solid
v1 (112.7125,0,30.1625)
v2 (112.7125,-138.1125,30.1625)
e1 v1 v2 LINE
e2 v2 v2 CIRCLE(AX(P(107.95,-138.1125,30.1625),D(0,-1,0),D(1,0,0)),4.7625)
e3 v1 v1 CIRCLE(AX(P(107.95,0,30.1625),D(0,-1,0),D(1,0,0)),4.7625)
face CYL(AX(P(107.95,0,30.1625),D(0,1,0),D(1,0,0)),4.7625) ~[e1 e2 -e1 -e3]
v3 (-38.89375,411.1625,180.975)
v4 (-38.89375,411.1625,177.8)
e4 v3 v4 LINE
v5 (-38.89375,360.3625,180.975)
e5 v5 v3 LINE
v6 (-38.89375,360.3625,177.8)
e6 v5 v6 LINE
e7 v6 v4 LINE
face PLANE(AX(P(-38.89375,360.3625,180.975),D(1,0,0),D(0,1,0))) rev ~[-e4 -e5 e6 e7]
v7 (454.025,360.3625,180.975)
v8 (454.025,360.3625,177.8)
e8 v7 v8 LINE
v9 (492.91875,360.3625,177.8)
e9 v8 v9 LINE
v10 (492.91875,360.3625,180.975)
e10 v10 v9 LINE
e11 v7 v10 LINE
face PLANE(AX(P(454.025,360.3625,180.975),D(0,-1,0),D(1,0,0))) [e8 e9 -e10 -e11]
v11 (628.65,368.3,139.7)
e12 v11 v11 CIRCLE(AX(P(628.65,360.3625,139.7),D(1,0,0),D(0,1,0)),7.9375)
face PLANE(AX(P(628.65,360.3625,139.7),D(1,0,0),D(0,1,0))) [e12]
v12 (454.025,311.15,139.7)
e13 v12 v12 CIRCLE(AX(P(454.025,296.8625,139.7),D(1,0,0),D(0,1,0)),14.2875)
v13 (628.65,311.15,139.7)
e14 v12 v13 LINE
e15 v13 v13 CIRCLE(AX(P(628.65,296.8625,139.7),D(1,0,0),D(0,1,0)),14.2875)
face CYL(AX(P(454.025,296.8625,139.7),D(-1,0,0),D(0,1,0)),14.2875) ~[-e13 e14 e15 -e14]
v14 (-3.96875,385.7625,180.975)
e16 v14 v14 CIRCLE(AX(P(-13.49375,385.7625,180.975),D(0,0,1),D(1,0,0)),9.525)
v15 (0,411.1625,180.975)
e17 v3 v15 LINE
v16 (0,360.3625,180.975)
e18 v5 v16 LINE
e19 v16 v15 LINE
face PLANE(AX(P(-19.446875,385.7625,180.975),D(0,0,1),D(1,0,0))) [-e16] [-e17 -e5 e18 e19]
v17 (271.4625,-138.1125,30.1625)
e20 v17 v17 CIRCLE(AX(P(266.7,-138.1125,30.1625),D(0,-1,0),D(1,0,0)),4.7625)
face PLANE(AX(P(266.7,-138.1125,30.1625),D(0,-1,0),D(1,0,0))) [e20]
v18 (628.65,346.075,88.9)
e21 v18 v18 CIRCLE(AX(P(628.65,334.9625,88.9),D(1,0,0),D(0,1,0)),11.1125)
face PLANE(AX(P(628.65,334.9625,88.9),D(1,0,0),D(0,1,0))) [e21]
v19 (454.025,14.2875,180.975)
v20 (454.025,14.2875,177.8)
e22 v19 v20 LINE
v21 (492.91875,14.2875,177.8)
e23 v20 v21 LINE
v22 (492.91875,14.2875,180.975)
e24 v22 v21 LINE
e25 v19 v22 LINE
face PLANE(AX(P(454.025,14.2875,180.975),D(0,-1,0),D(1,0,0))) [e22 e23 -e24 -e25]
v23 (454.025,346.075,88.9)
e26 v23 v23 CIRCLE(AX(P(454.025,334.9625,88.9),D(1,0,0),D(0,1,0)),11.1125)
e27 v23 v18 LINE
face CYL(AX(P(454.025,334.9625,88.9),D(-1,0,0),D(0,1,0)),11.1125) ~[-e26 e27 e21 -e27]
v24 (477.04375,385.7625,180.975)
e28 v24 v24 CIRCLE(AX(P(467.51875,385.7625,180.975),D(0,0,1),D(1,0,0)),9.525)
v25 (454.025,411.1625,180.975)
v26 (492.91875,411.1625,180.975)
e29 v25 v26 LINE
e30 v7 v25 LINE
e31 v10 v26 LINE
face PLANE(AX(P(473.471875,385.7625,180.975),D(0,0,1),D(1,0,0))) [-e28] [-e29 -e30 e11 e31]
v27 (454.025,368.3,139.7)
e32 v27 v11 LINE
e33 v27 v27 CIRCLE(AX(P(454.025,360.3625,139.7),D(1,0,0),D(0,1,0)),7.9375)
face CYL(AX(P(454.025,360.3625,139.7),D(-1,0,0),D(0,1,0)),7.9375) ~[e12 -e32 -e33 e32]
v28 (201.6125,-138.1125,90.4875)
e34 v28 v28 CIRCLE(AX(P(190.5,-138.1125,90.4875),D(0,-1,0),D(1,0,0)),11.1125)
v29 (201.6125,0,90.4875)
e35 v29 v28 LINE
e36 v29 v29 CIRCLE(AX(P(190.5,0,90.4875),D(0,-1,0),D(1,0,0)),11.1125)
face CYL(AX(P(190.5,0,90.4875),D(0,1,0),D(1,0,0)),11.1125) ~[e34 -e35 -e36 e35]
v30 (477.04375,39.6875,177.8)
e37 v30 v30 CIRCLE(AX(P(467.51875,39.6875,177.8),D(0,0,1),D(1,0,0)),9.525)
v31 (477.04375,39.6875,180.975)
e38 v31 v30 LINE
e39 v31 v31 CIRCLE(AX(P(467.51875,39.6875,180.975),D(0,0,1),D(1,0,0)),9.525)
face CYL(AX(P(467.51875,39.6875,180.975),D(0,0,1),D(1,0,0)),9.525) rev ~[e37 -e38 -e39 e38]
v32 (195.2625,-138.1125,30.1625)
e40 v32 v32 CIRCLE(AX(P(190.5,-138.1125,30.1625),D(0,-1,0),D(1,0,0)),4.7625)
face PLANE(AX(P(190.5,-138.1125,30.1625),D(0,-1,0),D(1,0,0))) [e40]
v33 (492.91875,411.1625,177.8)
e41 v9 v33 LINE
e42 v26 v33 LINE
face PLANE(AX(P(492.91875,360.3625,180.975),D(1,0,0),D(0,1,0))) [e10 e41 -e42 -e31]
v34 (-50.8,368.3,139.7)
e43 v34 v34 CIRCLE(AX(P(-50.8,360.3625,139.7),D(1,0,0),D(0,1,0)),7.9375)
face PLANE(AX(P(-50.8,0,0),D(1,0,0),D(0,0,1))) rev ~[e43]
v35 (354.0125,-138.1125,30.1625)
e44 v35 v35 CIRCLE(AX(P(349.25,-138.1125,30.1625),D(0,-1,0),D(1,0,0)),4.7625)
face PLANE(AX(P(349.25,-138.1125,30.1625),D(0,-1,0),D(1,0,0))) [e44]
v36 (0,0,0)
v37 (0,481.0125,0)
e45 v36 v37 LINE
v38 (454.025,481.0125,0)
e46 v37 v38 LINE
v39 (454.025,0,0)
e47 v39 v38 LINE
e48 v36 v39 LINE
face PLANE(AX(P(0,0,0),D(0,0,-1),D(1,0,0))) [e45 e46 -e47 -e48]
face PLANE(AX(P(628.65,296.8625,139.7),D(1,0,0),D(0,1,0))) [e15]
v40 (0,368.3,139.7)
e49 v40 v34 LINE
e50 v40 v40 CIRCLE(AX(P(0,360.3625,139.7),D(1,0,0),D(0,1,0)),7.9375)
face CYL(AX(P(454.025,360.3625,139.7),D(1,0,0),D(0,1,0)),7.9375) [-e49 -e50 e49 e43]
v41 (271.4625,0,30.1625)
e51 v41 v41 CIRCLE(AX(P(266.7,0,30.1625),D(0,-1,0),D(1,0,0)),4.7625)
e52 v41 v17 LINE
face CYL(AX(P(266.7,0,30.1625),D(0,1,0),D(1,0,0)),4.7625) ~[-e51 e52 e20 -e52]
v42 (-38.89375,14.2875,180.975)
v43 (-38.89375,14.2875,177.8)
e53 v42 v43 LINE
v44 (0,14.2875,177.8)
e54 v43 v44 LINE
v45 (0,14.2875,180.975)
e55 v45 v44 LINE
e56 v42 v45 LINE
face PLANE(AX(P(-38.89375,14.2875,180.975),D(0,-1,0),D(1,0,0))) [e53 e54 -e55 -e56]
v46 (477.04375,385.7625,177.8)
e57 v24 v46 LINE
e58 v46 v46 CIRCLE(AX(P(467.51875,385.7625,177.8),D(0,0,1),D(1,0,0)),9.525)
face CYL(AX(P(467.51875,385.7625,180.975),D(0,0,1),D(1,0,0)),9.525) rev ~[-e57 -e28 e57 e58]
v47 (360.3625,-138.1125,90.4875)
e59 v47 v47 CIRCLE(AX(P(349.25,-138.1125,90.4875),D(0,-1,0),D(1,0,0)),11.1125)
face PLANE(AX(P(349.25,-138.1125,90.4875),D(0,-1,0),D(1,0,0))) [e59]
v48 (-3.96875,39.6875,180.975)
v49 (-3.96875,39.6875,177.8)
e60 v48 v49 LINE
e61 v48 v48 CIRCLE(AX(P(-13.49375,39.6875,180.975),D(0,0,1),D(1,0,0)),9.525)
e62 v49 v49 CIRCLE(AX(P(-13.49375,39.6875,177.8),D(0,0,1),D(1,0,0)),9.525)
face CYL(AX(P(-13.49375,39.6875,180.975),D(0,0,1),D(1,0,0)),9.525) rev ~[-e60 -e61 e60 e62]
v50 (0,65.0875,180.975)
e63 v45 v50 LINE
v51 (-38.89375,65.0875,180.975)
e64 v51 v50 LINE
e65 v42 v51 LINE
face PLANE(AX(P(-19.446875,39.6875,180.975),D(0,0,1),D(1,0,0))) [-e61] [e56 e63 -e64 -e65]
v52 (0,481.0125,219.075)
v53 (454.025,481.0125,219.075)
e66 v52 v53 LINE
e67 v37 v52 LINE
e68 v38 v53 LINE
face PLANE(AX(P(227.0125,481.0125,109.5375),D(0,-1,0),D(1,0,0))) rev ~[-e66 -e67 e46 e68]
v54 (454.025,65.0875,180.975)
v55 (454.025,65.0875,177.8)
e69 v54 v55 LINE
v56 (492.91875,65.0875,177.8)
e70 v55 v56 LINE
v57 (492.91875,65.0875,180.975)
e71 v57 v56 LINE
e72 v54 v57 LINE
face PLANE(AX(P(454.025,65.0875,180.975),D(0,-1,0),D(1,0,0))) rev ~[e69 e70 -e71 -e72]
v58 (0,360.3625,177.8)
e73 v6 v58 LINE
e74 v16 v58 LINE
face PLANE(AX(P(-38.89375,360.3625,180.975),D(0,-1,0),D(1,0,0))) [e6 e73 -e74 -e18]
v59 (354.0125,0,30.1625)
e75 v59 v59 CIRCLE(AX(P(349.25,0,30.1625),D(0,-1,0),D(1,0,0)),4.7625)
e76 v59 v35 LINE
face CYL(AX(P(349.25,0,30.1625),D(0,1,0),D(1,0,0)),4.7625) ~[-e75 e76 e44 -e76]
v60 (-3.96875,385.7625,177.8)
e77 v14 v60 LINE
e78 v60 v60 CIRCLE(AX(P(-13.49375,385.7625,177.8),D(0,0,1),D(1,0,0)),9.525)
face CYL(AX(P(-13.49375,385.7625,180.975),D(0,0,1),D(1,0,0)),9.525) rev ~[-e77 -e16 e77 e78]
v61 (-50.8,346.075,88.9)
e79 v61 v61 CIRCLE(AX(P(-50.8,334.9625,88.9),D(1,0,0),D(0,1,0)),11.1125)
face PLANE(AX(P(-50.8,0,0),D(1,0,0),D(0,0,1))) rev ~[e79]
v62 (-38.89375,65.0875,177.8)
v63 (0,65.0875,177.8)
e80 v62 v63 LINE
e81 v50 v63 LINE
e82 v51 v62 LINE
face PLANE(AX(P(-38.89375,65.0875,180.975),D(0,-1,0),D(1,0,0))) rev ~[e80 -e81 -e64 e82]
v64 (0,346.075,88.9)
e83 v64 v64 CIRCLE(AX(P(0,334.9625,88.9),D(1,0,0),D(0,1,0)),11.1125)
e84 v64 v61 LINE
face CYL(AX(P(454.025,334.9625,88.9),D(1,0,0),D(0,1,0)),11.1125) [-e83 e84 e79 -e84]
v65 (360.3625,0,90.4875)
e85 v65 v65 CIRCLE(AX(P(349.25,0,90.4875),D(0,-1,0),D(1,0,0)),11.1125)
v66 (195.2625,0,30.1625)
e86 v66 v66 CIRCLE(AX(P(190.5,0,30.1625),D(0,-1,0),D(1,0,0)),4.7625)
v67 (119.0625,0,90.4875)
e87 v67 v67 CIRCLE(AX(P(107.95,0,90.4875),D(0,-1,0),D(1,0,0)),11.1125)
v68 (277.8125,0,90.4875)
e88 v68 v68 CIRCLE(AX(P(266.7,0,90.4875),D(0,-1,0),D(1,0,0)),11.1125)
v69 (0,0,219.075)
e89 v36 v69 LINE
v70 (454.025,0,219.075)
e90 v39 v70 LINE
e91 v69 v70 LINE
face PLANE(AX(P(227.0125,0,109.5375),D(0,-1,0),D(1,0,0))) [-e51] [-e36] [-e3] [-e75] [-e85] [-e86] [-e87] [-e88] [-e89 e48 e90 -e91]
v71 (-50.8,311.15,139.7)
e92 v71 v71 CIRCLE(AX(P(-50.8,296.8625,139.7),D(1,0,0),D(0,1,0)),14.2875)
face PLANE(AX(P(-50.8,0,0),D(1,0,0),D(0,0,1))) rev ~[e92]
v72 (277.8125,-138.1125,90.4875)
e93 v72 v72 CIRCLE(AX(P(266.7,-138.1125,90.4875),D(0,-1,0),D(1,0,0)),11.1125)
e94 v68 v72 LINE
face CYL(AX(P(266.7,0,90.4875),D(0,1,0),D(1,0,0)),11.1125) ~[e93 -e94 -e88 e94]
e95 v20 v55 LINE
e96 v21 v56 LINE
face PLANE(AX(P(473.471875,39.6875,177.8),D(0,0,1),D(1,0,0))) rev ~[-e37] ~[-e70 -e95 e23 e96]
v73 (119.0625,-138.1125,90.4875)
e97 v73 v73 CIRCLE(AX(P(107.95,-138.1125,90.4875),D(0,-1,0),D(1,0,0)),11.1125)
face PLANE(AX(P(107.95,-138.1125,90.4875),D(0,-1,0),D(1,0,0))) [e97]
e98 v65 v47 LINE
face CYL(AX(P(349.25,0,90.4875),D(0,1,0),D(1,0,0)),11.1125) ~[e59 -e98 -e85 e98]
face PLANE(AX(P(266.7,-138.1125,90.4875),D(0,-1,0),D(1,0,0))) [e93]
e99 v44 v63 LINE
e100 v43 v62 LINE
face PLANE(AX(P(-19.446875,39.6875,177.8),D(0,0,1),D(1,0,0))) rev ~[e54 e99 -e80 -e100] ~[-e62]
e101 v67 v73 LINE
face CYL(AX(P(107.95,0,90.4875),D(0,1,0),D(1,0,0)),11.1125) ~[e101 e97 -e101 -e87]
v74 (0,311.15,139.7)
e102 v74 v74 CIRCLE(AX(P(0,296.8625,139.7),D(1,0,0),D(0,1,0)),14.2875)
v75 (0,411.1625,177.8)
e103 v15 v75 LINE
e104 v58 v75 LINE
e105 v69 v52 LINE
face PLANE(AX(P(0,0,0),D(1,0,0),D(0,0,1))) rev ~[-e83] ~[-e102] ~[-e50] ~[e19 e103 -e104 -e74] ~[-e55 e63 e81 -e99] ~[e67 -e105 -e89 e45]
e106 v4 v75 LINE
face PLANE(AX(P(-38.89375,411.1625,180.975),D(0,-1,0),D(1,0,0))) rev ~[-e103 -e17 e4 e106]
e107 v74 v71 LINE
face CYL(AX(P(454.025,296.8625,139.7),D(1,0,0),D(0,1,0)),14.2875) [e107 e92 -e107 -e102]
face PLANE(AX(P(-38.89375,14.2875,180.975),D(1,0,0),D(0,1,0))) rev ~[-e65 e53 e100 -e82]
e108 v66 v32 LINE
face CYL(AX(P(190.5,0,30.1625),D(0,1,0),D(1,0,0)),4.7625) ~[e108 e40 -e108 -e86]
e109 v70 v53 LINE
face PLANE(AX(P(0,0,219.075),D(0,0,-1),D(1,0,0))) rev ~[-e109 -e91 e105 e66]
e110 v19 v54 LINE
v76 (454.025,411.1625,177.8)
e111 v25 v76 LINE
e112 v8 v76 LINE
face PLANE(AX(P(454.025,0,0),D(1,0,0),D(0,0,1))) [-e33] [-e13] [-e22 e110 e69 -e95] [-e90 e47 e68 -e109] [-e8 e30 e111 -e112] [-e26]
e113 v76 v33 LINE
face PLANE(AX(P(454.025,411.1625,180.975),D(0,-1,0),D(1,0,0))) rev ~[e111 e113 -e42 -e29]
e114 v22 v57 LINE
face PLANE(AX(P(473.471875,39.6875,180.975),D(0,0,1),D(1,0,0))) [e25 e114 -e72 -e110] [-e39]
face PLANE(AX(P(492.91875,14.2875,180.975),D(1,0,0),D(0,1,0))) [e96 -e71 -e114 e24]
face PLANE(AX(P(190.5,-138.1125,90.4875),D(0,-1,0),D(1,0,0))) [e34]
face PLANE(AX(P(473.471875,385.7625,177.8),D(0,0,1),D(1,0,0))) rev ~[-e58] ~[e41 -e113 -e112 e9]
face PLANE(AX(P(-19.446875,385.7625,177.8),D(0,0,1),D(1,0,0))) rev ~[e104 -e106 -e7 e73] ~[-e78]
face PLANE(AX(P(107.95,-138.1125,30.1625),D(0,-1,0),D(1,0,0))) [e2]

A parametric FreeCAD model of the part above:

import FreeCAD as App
import Part
import Sketcher

V = App.Vector
Q = App.Units.Quantity

doc = App.newDocument("Part")
params = doc.addObject("Spreadsheet::Sheet", "Params")
for row, (alias, value) in enumerate([
    ("sketch1_width", "17.875 in"),
    ("sketch1_height", "8.625 in"),
    ("pad1_length", "18.9375 in"),
    ("sketch2_diameter", "0.875 in"),
    ("sketch2_diameter2", "0.375 in"),
    ("pad2_length", "5.4375 in"),
    ("sketch3_diameter", "1.125 in"),
    ("sketch3_diameter2", "0.625 in"),
    ("sketch3_diameter3", "0.875 in"),
    ("pad3_length", "6.875 in"),
    ("pad3_length2", "24.75 in"),
    ("sketch4_diameter", "0.75 in"),
    ("sketch4_height", "2 in"),
    ("sketch4_width", "1.53125 in"),
    ("pad4_length", "0.125 in"),
    ("sketch5_width", "6 in"),
    ("sketch5_height", "8.625 in"),
], start=1):
    params.set(f"A{row}", alias)
    params.set(f"B{row}", "=" + value)
    params.setAlias(f"B{row}", alias)

body = doc.addObject("PartDesign::Body", "Body")

# Sketch on XZ plane
sketch1 = body.newObject("Sketcher::SketchObject", "Sketch")
sketch1.AttachmentSupport = (doc.getObject("XZ_Plane"), [""])
sketch1.MapMode = "FlatFace"
sketch1.addGeometry([
    Part.LineSegment(V(0, 219.075, 0), V(0, 0, 0)),
    Part.LineSegment(V(0, 0, 0), V(454.025, 0, 0)),
    Part.LineSegment(V(454.025, 0, 0), V(454.025, 219.075, 0)),
    Part.LineSegment(V(454.025, 219.075, 0), V(0, 219.075, 0)),
], False)
sketch1.addConstraint([
    Sketcher.Constraint("Coincident", 0, 2, 1, 1),
    Sketcher.Constraint("Coincident", 1, 2, 2, 1),
    Sketcher.Constraint("Coincident", 2, 2, 3, 1),
    Sketcher.Constraint("Coincident", 3, 2, 0, 1),
    Sketcher.Constraint("Vertical", 0),
    Sketcher.Constraint("Horizontal", 1),
    Sketcher.Constraint("Vertical", 2),
    Sketcher.Constraint("Horizontal", 3),
    Sketcher.Constraint("Coincident", 0, 2, -1, 1),
    Sketcher.Constraint("DistanceX", 1, 1, 1, 2, Q("17.875 in")),
    Sketcher.Constraint("DistanceY", 0, 2, 0, 1, Q("8.625 in")),
])
sketch1.setExpression("Constraints[9]", "Params.sketch1_width")
sketch1.setExpression("Constraints[10]", "Params.sketch1_height")
pad1 = body.newObject("PartDesign::Pad", "Pad")
pad1.Profile = sketch1
pad1.setExpression("Length", "Params.pad1_length")
pad1.Reversed = True

# Sketch on XZ plane
sketch2 = body.newObject("Sketcher::SketchObject", "Sketch001")
sketch2.AttachmentSupport = (doc.getObject("XZ_Plane"), [""])
sketch2.MapMode = "FlatFace"
sketch2.addGeometry([
    Part.Circle(V(107.95, 90.4875, 0), V(0, 0, 1), 11.1125),  # 0
    Part.Circle(V(107.95, 30.1625, 0), V(0, 0, 1), 4.7625),  # 1
    Part.Circle(V(349.25, 90.4875, 0), V(0, 0, 1), 11.1125),  # 2
    Part.Circle(V(349.25, 30.1625, 0), V(0, 0, 1), 4.7625),  # 3
    Part.Circle(V(190.5, 90.4875, 0), V(0, 0, 1), 11.1125),  # 4
    Part.Circle(V(266.7, 90.4875, 0), V(0, 0, 1), 11.1125),  # 5
    Part.Circle(V(190.5, 30.1625, 0), V(0, 0, 1), 4.7625),  # 6
    Part.Circle(V(266.7, 30.1625, 0), V(0, 0, 1), 4.7625),  # 7
], False)
sketch2.addConstraint([
    Sketcher.Constraint("Equal", 0, 2),
    Sketcher.Constraint("Equal", 1, 3),
    Sketcher.Constraint("Equal", 2, 4),
    Sketcher.Constraint("Equal", 4, 5),
    Sketcher.Constraint("Equal", 3, 6),
    Sketcher.Constraint("Equal", 6, 7),
    Sketcher.Constraint("Horizontal", 0, 3, 2, 3),
    Sketcher.Constraint("Horizontal", 1, 3, 3, 3),
    Sketcher.Constraint("Horizontal", 2, 3, 4, 3),
    Sketcher.Constraint("Horizontal", 4, 3, 5, 3),
    Sketcher.Constraint("Horizontal", 3, 3, 6, 3),
    Sketcher.Constraint("Horizontal", 6, 3, 7, 3),
    Sketcher.Constraint("Vertical", 0, 3, 1, 3),
    Sketcher.Constraint("Vertical", 2, 3, 3, 3),
    Sketcher.Constraint("Vertical", 4, 3, 6, 3),
    Sketcher.Constraint("Vertical", 5, 3, 7, 3),
    Sketcher.Constraint("Diameter", 0, Q("0.875 in")),
    Sketcher.Constraint("Diameter", 1, Q("0.375 in")),
    Sketcher.Constraint("DistanceX", 4, 3, 5, 3, Q("3 in")),
    Sketcher.Constraint("DistanceX", -1, 1, 4, 3, Q("7.5 in")),
    Sketcher.Constraint("DistanceX", 0, 3, 2, 3, Q("9.5 in")),
    Sketcher.Constraint("DistanceX", -1, 1, 0, 3, Q("4.25 in")),
    Sketcher.Constraint("DistanceY", -1, 1, 0, 3, Q("3.5625 in")),
    Sketcher.Constraint("DistanceY", -1, 1, 1, 3, Q("1.1875 in")),
])
sketch2.setExpression("Constraints[16]", "Params.sketch2_diameter")
sketch2.setExpression("Constraints[17]", "Params.sketch2_diameter2")
pad2 = body.newObject("PartDesign::Pad", "Pad001")
pad2.Profile = sketch2
pad2.setExpression("Length", "Params.pad2_length")

# Sketch on YZ plane
sketch3 = body.newObject("Sketcher::SketchObject", "Sketch002")
sketch3.AttachmentSupport = (doc.getObject("YZ_Plane"), [""])
sketch3.MapMode = "FlatFace"
sketch3.AttachmentOffset = App.Placement(V(0, 0, 17.875 * 25.4), App.Rotation())
sketch3.addGeometry([
    Part.Circle(V(296.8625, 139.7, 0), V(0, 0, 1), 14.2875),
    Part.Circle(V(360.3625, 139.7, 0), V(0, 0, 1), 7.9375),
    Part.Circle(V(334.9625, 88.9, 0), V(0, 0, 1), 11.1125),
], False)
sketch3.addConstraint([
    Sketcher.Constraint("Horizontal", 0, 3, 1, 3),
    Sketcher.Constraint("Diameter", 0, Q("1.125 in")),
    Sketcher.Constraint("Diameter", 1, Q("0.625 in")),
    Sketcher.Constraint("Diameter", 2, Q("0.875 in")),
    Sketcher.Constraint("DistanceX", 2, 3, 1, 3, Q("1 in")),
    Sketcher.Constraint("DistanceY", 2, 3, 1, 3, Q("2 in")),
    Sketcher.Constraint("DistanceY", -1, 1, 0, 3, Q("5.5 in")),
    Sketcher.Constraint("DistanceX", 0, 3, 1, 3, Q("2.5 in")),
    Sketcher.Constraint("DistanceX", -1, 1, 0, 3, Q("11.6875 in")),
])
sketch3.setExpression("Constraints[1]", "Params.sketch3_diameter")
sketch3.setExpression("Constraints[2]", "Params.sketch3_diameter2")
sketch3.setExpression("Constraints[3]", "Params.sketch3_diameter3")
pad3 = body.newObject("PartDesign::Pad", "Pad002")
pad3.Profile = sketch3
pad3.Type = "TwoLengths"
pad3.setExpression("Length", "Params.pad3_length")
pad3.setExpression("Length2", "Params.pad3_length2")

# Sketch on XY plane
sketch4 = body.newObject("Sketcher::SketchObject", "Sketch003")
sketch4.AttachmentSupport = (doc.getObject("XY_Plane"), [""])
sketch4.MapMode = "FlatFace"
sketch4.AttachmentOffset = App.Placement(V(0, 0, 7.125 * 25.4), App.Rotation())
sketch4.addGeometry([
    Part.LineSegment(V(-38.89375, 411.1625, 0), V(-38.89375, 360.3625, 0)),  # 0
    Part.LineSegment(V(-38.89375, 360.3625, 0), V(0, 360.3625, 0)),  # 1
    Part.LineSegment(V(0, 360.3625, 0), V(0, 411.1625, 0)),  # 2
    Part.LineSegment(V(0, 411.1625, 0), V(-38.89375, 411.1625, 0)),  # 3
    Part.Circle(V(-13.49375, 385.7625, 0), V(0, 0, 1), 9.525),  # 4
    Part.LineSegment(V(-38.89375, 65.0875, 0), V(-38.89375, 14.2875, 0)),  # 5
    Part.LineSegment(V(-38.89375, 14.2875, 0), V(0, 14.2875, 0)),  # 6
    Part.LineSegment(V(0, 14.2875, 0), V(0, 65.0875, 0)),  # 7
    Part.LineSegment(V(0, 65.0875, 0), V(-38.89375, 65.0875, 0)),  # 8
    Part.Circle(V(-13.49375, 39.6875, 0), V(0, 0, 1), 9.525),  # 9
    Part.LineSegment(V(454.025, 411.1625, 0), V(454.025, 360.3625, 0)),  # 10
    Part.LineSegment(V(454.025, 360.3625, 0), V(492.91875, 360.3625, 0)),  # 11
    Part.LineSegment(V(492.91875, 360.3625, 0), V(492.91875, 411.1625, 0)),  # 12
    Part.LineSegment(V(492.91875, 411.1625, 0), V(454.025, 411.1625, 0)),  # 13
    Part.Circle(V(467.51875, 385.7625, 0), V(0, 0, 1), 9.525),  # 14
    Part.LineSegment(V(454.025, 65.0875, 0), V(454.025, 14.2875, 0)),  # 15
    Part.LineSegment(V(454.025, 14.2875, 0), V(492.91875, 14.2875, 0)),  # 16
    Part.LineSegment(V(492.91875, 14.2875, 0), V(492.91875, 65.0875, 0)),  # 17
    Part.LineSegment(V(492.91875, 65.0875, 0), V(454.025, 65.0875, 0)),  # 18
    Part.Circle(V(467.51875, 39.6875, 0), V(0, 0, 1), 9.525),  # 19
], False)
sketch4.addConstraint([
    Sketcher.Constraint("Coincident", 0, 2, 1, 1),
    Sketcher.Constraint("Coincident", 1, 2, 2, 1),
    Sketcher.Constraint("Coincident", 2, 2, 3, 1),
    Sketcher.Constraint("Coincident", 3, 2, 0, 1),
    Sketcher.Constraint("Coincident", 5, 2, 6, 1),
    Sketcher.Constraint("Coincident", 6, 2, 7, 1),
    Sketcher.Constraint("Coincident", 7, 2, 8, 1),
    Sketcher.Constraint("Coincident", 8, 2, 5, 1),
    Sketcher.Constraint("Coincident", 10, 2, 11, 1),
    Sketcher.Constraint("Coincident", 11, 2, 12, 1),
    Sketcher.Constraint("Coincident", 12, 2, 13, 1),
    Sketcher.Constraint("Coincident", 13, 2, 10, 1),
    Sketcher.Constraint("Coincident", 15, 2, 16, 1),
    Sketcher.Constraint("Coincident", 16, 2, 17, 1),
    Sketcher.Constraint("Coincident", 17, 2, 18, 1),
    Sketcher.Constraint("Coincident", 18, 2, 15, 1),
    Sketcher.Constraint("Vertical", 0),
    Sketcher.Constraint("Horizontal", 1),
    Sketcher.Constraint("Vertical", 2),
    Sketcher.Constraint("Horizontal", 3),
    Sketcher.Constraint("Vertical", 5),
    Sketcher.Constraint("Horizontal", 6),
    Sketcher.Constraint("Vertical", 7),
    Sketcher.Constraint("Horizontal", 8),
    Sketcher.Constraint("Vertical", 10),
    Sketcher.Constraint("Horizontal", 11),
    Sketcher.Constraint("Vertical", 12),
    Sketcher.Constraint("Horizontal", 13),
    Sketcher.Constraint("Vertical", 15),
    Sketcher.Constraint("Horizontal", 16),
    Sketcher.Constraint("Vertical", 17),
    Sketcher.Constraint("Horizontal", 18),
    Sketcher.Constraint("Equal", 4, 9),
    Sketcher.Constraint("Equal", 9, 14),
    Sketcher.Constraint("Equal", 14, 19),
    Sketcher.Constraint("PointOnObject", 1, 2, -2),
    Sketcher.Constraint("PointOnObject", 6, 2, -2),
    Sketcher.Constraint("Horizontal", 4, 3, 14, 3),
    Sketcher.Constraint("Horizontal", 9, 3, 19, 3),
    Sketcher.Constraint("Horizontal", 1, 2, 10, 2),
    Sketcher.Constraint("Horizontal", 3, 2, 12, 2),
    Sketcher.Constraint("Horizontal", 6, 2, 15, 2),
    Sketcher.Constraint("Horizontal", 8, 2, 17, 2),
    Sketcher.Constraint("Vertical", 4, 3, 9, 3),
    Sketcher.Constraint("Vertical", 14, 3, 19, 3),
    Sketcher.Constraint("Vertical", 3, 2, 5, 2),
    Sketcher.Constraint("Vertical", 13, 2, 15, 2),
    Sketcher.Constraint("Vertical", 12, 2, 16, 2),
    Sketcher.Constraint("Equal", 8, 11),
    Sketcher.Constraint("Equal", 2, 5),
    Sketcher.Constraint("Diameter", 4, Q("0.75 in")),
    Sketcher.Constraint("DistanceY", 0, 2, 0, 1, Q("2 in")),
    Sketcher.Constraint("DistanceX", 0, 2, 4, 3, Q("1 in")),
    Sketcher.Constraint("DistanceY", 0, 2, 4, 3, Q("1 in")),
    Sketcher.Constraint("DistanceY", 5, 2, 9, 3, Q("1 in")),
    Sketcher.Constraint("DistanceX", 14, 3, 11, 2, Q("1 in")),
    Sketcher.Constraint("DistanceX", 1, 1, 1, 2, Q("1.53125 in")),
    Sketcher.Constraint("DistanceY", -1, 1, 4, 3, Q("15.1875 in")),
    Sketcher.Constraint("DistanceY", -1, 1, 9, 3, Q("1.5625 in")),
    Sketcher.Constraint("DistanceX", -1, 1, 14, 3, Q("18.40625 in")),
])
sketch4.setExpression("Constraints[50]", "Params.sketch4_diameter")
sketch4.setExpression("Constraints[51]", "Params.sketch4_height")
sketch4.setExpression("Constraints[56]", "Params.sketch4_width")
pad4 = body.newObject("PartDesign::Pad", "Pad003")
pad4.Profile = sketch4
pad4.setExpression("Length", "Params.pad4_length")
pad4.Reversed = True

# Sketch on XZ plane
sketch5 = body.newObject("Sketcher::SketchObject", "Sketch004")
sketch5.AttachmentSupport = (doc.getObject("XZ_Plane"), [""])
sketch5.MapMode = "FlatFace"
sketch5.addGeometry([
    Part.LineSegment(V(-203.2, 219.075, 0), V(-203.2, 0, 0)),
    Part.LineSegment(V(-203.2, 0, 0), V(-50.8, 0, 0)),
    Part.LineSegment(V(-50.8, 0, 0), V(-50.8, 219.075, 0)),
    Part.LineSegment(V(-50.8, 219.075, 0), V(-203.2, 219.075, 0)),
], False)
sketch5.addConstraint([
    Sketcher.Constraint("Coincident", 0, 2, 1, 1),
    Sketcher.Constraint("Coincident", 1, 2, 2, 1),
    Sketcher.Constraint("Coincident", 2, 2, 3, 1),
    Sketcher.Constraint("Coincident", 3, 2, 0, 1),
    Sketcher.Constraint("Vertical", 0),
    Sketcher.Constraint("Horizontal", 1),
    Sketcher.Constraint("Vertical", 2),
    Sketcher.Constraint("Horizontal", 3),
    Sketcher.Constraint("PointOnObject", 0, 2, -1),
    Sketcher.Constraint("DistanceX", 1, 1, 1, 2, Q("6 in")),
    Sketcher.Constraint("DistanceX", 0, 2, -1, 1, Q("8 in")),
    Sketcher.Constraint("DistanceY", 0, 2, 0, 1, Q("8.625 in")),
])
sketch5.setExpression("Constraints[9]", "Params.sketch5_width")
sketch5.setExpression("Constraints[11]", "Params.sketch5_height")
pocket1 = body.newObject("PartDesign::Pocket", "Pocket")
pocket1.Profile = sketch5
pocket1.Type = "ThroughAll"

doc.recompute()
